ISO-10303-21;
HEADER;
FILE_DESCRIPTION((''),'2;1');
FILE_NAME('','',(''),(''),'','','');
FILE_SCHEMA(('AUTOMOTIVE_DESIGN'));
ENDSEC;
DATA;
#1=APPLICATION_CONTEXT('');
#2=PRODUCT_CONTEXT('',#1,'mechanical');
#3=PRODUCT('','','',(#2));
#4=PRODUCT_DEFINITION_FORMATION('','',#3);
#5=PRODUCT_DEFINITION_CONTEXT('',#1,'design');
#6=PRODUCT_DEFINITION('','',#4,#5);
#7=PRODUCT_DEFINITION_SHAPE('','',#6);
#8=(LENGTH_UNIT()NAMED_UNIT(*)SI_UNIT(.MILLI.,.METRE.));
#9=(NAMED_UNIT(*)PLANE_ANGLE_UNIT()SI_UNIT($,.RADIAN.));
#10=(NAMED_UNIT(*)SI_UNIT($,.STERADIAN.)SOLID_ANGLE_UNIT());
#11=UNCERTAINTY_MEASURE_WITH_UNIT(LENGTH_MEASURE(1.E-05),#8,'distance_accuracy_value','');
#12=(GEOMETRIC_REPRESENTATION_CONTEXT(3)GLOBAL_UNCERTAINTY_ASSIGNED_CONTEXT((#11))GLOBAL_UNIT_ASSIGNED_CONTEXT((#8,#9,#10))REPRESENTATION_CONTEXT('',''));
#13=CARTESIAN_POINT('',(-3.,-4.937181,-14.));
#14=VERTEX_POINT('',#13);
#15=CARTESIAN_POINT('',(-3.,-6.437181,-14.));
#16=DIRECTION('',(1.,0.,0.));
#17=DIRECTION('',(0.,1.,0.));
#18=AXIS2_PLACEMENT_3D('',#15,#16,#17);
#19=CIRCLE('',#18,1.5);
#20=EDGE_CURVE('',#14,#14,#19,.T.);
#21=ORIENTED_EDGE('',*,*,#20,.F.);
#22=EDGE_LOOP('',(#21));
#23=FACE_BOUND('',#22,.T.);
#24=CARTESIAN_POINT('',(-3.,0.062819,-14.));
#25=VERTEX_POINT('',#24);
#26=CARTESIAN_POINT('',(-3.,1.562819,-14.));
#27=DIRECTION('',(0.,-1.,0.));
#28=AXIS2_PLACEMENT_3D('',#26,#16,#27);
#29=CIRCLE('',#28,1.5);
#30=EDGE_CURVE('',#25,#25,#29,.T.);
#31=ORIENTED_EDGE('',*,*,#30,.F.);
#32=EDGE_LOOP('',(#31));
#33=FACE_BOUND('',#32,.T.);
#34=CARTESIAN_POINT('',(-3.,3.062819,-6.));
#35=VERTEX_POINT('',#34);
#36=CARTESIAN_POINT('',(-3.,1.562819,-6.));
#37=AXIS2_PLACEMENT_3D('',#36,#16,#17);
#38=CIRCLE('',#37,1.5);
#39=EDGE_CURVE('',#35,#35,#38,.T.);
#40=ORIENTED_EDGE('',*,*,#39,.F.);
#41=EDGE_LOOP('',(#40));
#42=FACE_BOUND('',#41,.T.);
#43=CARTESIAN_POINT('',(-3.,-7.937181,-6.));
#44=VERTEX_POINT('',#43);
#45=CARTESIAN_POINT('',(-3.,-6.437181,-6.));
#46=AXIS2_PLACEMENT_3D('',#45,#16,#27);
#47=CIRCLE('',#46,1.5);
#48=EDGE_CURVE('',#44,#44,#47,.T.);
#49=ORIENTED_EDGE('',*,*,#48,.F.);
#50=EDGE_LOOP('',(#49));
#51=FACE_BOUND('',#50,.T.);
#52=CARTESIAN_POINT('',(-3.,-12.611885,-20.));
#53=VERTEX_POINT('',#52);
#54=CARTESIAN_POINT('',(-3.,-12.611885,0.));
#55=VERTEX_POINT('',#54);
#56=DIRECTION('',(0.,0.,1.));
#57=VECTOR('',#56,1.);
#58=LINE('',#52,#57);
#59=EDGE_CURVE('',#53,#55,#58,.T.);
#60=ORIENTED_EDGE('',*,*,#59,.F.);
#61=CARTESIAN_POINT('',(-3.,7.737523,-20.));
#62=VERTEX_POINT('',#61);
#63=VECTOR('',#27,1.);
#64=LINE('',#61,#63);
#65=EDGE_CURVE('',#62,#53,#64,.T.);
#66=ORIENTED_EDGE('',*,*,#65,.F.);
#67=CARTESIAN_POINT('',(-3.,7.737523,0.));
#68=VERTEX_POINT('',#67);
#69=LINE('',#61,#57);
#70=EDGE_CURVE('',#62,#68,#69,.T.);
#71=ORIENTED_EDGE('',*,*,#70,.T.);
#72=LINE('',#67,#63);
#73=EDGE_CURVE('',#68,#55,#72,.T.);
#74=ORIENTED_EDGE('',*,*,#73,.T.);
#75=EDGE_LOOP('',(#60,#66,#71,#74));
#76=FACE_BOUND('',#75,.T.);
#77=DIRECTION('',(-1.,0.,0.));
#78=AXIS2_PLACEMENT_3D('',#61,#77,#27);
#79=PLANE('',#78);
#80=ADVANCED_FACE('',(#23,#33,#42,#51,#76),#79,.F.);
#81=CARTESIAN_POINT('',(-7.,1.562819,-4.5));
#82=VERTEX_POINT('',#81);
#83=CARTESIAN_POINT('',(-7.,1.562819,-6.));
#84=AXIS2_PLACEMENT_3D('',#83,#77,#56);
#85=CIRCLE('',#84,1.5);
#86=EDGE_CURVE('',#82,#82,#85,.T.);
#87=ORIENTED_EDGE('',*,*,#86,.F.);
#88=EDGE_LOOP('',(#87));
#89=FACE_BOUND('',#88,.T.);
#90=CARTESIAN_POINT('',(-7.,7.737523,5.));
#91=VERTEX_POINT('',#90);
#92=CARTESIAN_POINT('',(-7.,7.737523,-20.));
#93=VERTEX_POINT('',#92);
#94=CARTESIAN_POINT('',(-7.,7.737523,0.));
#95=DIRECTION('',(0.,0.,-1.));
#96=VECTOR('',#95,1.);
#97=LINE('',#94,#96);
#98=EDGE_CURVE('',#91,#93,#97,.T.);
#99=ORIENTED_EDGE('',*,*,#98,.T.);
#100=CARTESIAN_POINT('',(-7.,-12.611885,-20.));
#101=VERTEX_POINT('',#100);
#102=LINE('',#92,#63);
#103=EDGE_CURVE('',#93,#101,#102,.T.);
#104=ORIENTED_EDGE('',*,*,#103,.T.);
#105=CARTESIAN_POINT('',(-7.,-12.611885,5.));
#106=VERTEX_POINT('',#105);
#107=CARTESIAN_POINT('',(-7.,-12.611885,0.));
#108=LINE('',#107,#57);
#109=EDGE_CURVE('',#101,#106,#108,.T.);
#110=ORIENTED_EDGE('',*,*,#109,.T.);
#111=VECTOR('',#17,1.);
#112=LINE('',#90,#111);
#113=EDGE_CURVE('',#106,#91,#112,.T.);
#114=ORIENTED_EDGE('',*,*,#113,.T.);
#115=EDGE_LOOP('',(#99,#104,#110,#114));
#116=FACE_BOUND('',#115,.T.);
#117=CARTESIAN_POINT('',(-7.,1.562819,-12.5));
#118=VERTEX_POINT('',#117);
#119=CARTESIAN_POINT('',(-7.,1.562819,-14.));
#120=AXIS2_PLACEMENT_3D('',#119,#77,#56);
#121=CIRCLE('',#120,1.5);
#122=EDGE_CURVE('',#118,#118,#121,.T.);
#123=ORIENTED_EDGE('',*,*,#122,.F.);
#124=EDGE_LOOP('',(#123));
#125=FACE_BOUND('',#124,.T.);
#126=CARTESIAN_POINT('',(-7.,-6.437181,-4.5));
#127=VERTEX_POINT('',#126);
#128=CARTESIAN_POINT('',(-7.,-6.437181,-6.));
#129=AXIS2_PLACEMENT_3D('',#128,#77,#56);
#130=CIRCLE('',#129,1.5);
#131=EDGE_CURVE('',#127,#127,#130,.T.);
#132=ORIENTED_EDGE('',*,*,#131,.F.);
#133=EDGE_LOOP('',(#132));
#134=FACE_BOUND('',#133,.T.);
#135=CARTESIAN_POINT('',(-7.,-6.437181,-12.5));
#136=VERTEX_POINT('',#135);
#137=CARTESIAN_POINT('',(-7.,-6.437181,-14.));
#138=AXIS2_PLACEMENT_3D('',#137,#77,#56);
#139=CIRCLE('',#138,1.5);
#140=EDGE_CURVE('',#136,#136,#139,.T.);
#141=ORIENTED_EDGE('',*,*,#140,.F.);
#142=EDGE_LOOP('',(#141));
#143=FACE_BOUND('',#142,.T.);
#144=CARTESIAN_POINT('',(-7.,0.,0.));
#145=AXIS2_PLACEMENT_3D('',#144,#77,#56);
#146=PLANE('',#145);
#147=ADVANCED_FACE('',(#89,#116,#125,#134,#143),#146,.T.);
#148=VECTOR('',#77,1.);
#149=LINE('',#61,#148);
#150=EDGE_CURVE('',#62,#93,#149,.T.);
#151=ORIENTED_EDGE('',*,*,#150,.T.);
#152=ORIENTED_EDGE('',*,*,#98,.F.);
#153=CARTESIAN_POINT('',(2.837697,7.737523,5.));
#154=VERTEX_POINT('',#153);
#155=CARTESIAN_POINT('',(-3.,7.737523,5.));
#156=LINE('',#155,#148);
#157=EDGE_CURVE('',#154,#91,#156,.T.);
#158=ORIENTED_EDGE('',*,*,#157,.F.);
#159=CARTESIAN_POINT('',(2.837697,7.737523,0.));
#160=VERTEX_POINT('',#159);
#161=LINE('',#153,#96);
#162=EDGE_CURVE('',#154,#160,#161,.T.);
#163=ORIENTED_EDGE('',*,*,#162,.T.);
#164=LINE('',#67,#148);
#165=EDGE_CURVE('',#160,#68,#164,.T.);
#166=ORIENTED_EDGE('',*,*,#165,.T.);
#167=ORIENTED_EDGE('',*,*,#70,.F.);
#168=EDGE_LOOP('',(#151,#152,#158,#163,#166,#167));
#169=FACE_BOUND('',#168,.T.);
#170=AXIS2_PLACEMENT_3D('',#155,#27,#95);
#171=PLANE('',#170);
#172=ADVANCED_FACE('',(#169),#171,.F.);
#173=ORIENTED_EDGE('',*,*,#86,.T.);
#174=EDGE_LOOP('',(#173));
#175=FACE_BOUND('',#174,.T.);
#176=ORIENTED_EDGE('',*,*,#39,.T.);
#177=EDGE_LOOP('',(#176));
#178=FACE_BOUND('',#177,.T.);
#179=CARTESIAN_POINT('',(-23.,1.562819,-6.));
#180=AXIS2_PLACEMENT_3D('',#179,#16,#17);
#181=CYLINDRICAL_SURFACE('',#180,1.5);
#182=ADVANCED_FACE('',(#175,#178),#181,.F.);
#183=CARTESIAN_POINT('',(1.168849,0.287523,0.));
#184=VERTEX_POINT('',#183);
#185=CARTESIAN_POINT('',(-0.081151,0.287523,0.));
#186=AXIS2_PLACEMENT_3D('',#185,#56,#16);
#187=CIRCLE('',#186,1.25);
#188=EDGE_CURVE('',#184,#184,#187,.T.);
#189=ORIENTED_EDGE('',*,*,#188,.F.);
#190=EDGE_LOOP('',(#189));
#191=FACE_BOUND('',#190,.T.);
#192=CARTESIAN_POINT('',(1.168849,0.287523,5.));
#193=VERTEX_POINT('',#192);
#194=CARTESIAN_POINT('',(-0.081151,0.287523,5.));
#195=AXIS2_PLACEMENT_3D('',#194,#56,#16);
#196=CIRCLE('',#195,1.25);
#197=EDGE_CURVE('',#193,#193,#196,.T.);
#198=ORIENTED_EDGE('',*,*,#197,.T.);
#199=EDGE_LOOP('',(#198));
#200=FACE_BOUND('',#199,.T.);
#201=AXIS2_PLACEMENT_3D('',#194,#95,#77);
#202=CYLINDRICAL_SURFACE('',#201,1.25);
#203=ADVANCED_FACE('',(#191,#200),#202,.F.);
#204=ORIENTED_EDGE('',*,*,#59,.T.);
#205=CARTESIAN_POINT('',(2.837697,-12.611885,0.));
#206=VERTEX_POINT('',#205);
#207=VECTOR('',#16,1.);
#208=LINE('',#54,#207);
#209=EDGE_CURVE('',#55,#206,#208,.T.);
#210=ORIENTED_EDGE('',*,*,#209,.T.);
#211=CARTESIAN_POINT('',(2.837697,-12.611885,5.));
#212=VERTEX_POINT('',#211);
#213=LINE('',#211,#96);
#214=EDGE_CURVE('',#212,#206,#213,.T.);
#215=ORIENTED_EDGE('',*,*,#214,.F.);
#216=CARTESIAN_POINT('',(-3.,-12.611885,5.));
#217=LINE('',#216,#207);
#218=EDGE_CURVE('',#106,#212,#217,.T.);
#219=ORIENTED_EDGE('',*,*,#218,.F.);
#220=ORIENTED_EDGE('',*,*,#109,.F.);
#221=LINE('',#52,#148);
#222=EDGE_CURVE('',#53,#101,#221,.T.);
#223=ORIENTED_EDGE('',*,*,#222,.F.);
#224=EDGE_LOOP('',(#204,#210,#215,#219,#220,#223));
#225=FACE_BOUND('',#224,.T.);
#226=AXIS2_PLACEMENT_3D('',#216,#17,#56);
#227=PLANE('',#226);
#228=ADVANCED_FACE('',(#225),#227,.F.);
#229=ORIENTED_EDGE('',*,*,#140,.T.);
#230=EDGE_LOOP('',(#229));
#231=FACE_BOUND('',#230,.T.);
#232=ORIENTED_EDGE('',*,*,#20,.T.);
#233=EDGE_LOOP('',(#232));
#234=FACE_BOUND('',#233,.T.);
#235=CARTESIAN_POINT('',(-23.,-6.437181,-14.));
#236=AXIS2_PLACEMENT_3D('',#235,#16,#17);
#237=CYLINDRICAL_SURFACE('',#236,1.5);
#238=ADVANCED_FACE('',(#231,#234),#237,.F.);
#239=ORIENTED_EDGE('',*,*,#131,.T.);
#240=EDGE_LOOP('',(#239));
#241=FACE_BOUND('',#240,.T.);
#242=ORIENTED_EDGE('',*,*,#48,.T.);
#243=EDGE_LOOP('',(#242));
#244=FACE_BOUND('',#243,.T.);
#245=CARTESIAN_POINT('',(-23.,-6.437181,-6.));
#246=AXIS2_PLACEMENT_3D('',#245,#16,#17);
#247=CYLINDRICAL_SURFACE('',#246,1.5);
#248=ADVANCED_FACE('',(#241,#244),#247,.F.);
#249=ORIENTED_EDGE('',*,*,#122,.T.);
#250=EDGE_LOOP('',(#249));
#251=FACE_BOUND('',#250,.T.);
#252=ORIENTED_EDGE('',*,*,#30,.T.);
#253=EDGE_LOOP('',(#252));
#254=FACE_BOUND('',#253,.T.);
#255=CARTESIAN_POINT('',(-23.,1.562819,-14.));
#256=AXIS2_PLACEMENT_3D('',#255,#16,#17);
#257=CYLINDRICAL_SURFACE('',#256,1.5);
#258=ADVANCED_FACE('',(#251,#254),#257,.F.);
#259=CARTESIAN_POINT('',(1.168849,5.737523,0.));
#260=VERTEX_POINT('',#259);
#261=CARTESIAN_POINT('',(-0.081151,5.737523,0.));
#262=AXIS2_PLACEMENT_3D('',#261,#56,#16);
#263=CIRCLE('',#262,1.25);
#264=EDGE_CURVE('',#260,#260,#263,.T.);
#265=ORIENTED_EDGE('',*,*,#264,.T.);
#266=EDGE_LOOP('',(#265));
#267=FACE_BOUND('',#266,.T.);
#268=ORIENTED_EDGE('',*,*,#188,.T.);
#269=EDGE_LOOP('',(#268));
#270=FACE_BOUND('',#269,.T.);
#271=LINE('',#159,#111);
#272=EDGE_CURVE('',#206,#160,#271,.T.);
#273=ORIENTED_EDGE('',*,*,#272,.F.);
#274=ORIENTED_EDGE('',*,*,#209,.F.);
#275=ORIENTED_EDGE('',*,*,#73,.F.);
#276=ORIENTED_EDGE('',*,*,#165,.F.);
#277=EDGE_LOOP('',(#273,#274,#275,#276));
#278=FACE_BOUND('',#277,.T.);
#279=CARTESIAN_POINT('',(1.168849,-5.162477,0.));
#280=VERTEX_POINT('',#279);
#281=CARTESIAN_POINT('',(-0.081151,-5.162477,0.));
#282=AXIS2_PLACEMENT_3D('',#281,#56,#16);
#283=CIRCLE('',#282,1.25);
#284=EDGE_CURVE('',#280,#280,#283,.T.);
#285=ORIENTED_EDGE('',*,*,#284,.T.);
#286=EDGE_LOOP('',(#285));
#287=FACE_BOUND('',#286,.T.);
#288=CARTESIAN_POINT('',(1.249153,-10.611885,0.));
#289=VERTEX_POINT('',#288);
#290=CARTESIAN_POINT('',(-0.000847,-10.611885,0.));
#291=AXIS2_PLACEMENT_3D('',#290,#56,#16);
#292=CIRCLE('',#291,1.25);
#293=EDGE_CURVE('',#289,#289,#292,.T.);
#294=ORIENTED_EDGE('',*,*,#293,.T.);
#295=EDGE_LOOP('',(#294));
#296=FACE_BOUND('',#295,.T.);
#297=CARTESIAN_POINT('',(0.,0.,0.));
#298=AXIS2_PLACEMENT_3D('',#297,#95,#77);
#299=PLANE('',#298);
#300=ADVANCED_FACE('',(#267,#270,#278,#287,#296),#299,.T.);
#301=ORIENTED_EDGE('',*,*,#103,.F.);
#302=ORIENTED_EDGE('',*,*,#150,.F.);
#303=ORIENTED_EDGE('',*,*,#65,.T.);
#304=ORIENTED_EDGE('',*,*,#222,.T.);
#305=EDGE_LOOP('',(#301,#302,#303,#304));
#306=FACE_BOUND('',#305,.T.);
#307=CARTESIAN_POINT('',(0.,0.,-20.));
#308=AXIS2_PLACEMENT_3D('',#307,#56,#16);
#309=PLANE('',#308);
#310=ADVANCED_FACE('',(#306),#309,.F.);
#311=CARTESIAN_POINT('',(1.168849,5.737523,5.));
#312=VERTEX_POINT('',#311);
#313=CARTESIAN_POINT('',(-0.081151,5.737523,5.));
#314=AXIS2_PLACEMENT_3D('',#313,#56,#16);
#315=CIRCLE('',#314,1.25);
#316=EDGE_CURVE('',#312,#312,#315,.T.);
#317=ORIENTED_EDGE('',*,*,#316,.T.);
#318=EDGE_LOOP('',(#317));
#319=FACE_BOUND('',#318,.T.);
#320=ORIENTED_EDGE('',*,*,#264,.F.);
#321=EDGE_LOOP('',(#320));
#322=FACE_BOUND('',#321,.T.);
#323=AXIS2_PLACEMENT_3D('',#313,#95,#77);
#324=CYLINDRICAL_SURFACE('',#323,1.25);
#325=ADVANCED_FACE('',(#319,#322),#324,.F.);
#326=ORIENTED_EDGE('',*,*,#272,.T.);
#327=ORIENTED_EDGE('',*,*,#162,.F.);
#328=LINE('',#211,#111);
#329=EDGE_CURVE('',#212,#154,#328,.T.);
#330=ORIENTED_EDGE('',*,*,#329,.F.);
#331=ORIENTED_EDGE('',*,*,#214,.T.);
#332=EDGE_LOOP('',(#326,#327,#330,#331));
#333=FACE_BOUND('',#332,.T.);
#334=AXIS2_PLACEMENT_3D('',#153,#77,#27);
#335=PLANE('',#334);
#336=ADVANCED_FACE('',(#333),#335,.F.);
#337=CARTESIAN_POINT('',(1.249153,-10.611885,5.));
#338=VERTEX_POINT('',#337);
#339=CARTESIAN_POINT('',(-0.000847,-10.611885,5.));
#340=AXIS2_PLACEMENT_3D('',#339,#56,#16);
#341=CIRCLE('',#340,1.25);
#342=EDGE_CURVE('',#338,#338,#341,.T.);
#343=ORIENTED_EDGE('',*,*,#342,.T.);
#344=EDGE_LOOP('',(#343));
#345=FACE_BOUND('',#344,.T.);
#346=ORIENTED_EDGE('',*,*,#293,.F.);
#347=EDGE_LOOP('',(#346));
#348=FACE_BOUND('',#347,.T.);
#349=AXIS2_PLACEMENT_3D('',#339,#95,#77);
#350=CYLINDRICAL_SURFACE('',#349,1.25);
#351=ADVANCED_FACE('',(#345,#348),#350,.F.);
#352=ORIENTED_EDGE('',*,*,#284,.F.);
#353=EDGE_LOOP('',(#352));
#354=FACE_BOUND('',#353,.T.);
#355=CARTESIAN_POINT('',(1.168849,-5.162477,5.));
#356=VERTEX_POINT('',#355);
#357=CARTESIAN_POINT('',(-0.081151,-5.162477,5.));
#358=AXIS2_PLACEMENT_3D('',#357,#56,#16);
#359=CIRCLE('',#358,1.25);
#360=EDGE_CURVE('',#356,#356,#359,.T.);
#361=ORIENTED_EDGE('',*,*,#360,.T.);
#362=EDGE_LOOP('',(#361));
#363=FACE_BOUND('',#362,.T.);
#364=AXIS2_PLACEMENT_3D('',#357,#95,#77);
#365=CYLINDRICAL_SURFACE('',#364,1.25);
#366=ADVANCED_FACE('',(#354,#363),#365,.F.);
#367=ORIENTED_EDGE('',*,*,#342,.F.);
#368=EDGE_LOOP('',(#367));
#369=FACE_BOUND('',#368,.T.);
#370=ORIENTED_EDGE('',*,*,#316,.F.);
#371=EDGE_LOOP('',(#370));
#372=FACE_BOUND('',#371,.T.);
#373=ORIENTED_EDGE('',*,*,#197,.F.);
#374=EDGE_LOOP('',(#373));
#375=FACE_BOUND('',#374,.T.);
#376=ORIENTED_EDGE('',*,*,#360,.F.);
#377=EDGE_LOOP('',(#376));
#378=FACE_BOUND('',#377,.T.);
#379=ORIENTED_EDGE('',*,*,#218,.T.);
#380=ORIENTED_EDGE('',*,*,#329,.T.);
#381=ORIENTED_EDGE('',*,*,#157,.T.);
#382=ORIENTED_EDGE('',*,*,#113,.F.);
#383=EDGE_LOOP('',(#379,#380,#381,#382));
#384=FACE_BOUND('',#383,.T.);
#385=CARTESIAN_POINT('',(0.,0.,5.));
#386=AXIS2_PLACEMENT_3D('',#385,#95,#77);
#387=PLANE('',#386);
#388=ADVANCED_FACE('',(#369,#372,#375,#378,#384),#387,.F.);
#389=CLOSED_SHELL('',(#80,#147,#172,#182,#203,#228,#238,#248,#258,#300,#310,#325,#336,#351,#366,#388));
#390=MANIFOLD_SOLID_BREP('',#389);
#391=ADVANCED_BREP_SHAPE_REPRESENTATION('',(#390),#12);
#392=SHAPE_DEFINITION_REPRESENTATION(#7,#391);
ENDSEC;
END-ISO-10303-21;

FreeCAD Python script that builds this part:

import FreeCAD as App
import Part
import Sketcher
Q = App.Units.Quantity


def add_polygon(sketch, points):
    """Adds a closed chain of lines whose ends are joined by coincident constraints."""
    first, n = sketch.GeometryCount, len(points)
    for a, b in zip(points, points[1:] + points[:1]):
        sketch.addGeometry(Part.LineSegment(App.Vector(*a, 0), App.Vector(*b, 0)), False)
    for i in range(n):
        sketch.addConstraint(Sketcher.Constraint("Coincident", first + i, 2, first + (i + 1) % n, 1))

doc = App.newDocument("Part")
body = doc.addObject("PartDesign::Body", "Body")

# Sketch on XY plane
sketch1 = body.newObject("Sketcher::SketchObject", "Sketch")
sketch1.AttachmentSupport = (doc.getObject("XY_Plane"), [""])
sketch1.MapMode = "FlatFace"
add_polygon(sketch1, [(-3, -12.6), (2.8, -12.6), (2.8, 7.7), (-3, 7.7)])  # lines 0-3
sketch1.addGeometry(Part.Circle(App.Vector(-0.1, -5.2, 0), App.Vector(0, 0, 1), 1.2), False)  # 4
sketch1.addGeometry(Part.Circle(App.Vector(0, -10.6, 0), App.Vector(0, 0, 1), 1.2), False)  # 5
sketch1.addGeometry(Part.Circle(App.Vector(-0.1, 0.3, 0), App.Vector(0, 0, 1), 1.2), False)  # 6
sketch1.addGeometry(Part.Circle(App.Vector(-0.1, 5.7, 0), App.Vector(0, 0, 1), 1.2), False)  # 7
sketch1.addConstraint([
    Sketcher.Constraint("Horizontal", 0),
    Sketcher.Constraint("Vertical", 1),
    Sketcher.Constraint("Horizontal", 2),
    Sketcher.Constraint("Vertical", 3),
    Sketcher.Constraint("Equal", 4, 5),
    Sketcher.Constraint("Equal", 5, 6),
    Sketcher.Constraint("Equal", 6, 7),
    Sketcher.Constraint("Vertical", 4, 3, 6, 3),
    Sketcher.Constraint("Vertical", 6, 3, 7, 3),
    Sketcher.Constraint("Diameter", 4, Q("2.5 mm")),
    Sketcher.Constraint("DistanceX", 2, 2, -1, 1, Q("3 mm")),
    Sketcher.Constraint("DistanceY", 0, 2, 5, 3, Q("2 mm")),
    Sketcher.Constraint("DistanceY", 7, 3, 1, 2, Q("2 mm")),
    Sketcher.Constraint("DistanceY", 4, 3, 7, 3, Q("10.9 mm")),
    Sketcher.Constraint("DistanceY", 4, 3, 6, 3, Q("5.45 mm")),
    Sketcher.Constraint("DistanceY", 1, 1, 1, 2, Q("20.349408 mm")),
    Sketcher.Constraint("DistanceX", 0, 1, 0, 2, Q("5.837697 mm")),
    Sketcher.Constraint("DistanceX", 4, 3, -1, 1, Q("0.081151 mm")),
    Sketcher.Constraint("DistanceY", 4, 3, -1, 1, Q("5.162477 mm")),
    Sketcher.Constraint("DistanceX", 5, 3, -1, 1, Q("0.000847 mm")),
])
pad1 = body.newObject("PartDesign::Pad", "Pad")
pad1.Profile = sketch1
pad1.Length = 5

# Sketch on YZ plane
sketch2 = body.newObject("Sketcher::SketchObject", "Sketch001")
sketch2.AttachmentSupport = (doc.getObject("YZ_Plane"), [""])
sketch2.MapMode = "FlatFace"
sketch2.AttachmentOffset = App.Placement(App.Vector(0, 0, -3), App.Rotation())
add_polygon(sketch2, [(8, 0), (-13, 0), (-13, 5), (8, 5)])  # lines 0-3
sketch2.addConstraint([
    Sketcher.Constraint("Horizontal", 0),
    Sketcher.Constraint("Vertical", 1),
    Sketcher.Constraint("Horizontal", 2),
    Sketcher.Constraint("Vertical", 3),
    Sketcher.Constraint("PointOnObject", 0, 2, -1),
    Sketcher.Constraint("DistanceY", 1, 1, 1, 2, Q("5 mm")),
    Sketcher.Constraint("DistanceX", 0, 2, 0, 1, Q("20.349408 mm")),
    Sketcher.Constraint("DistanceX", 0, 2, -1, 1, Q("12.611885 mm")),
])
pad2 = body.newObject("PartDesign::Pad", "Pad001")
pad2.Profile = sketch2
pad2.Length = 4
pad2.Reversed = True

# Sketch on XY plane
sketch3 = body.newObject("Sketcher::SketchObject", "Sketch002")
sketch3.AttachmentSupport = (doc.getObject("XY_Plane"), [""])
sketch3.MapMode = "FlatFace"
add_polygon(sketch3, [(-3, 7.7), (-3, -12.6), (-7, -12.6), (-7, 7.7)])  # lines 0-3
sketch3.addConstraint([
    Sketcher.Constraint("Vertical", 0),
    Sketcher.Constraint("Horizontal", 1),
    Sketcher.Constraint("Vertical", 2),
    Sketcher.Constraint("Horizontal", 3),
    Sketcher.Constraint("DistanceX", 1, 2, 1, 1, Q("4 mm")),
    Sketcher.Constraint("DistanceX", 0, 2, -1, 1, Q("3 mm")),
    Sketcher.Constraint("DistanceY", 0, 2, 0, 1, Q("20.349408 mm")),
    Sketcher.Constraint("DistanceY", 0, 2, -1, 1, Q("12.611885 mm")),
])
pad3 = body.newObject("PartDesign::Pad", "Pad002")
pad3.Profile = sketch3
pad3.Length = 20
pad3.Reversed = True

# Sketch on YZ plane
sketch4 = body.newObject("Sketcher::SketchObject", "Sketch003")
sketch4.AttachmentSupport = (doc.getObject("YZ_Plane"), [""])
sketch4.MapMode = "FlatFace"
sketch4.AttachmentOffset = App.Placement(App.Vector(0, 0, -3), App.Rotation())
sketch4.addGeometry([
    Part.Circle(App.Vector(1.6, -6, 0), App.Vector(0, 0, 1), 1.5),
    Part.Circle(App.Vector(1.6, -14, 0), App.Vector(0, 0, 1), 1.5),
    Part.Circle(App.Vector(-6.4, -14, 0), App.Vector(0, 0, 1), 1.5),
    Part.Circle(App.Vector(-6.4, -6, 0), App.Vector(0, 0, 1), 1.5),
], False)
sketch4.addConstraint([
    Sketcher.Constraint("Equal", 0, 1),
    Sketcher.Constraint("Equal", 1, 2),
    Sketcher.Constraint("Equal", 2, 3),
    Sketcher.Constraint("Horizontal", 1, 3, 2, 3),
    Sketcher.Constraint("Horizontal", 0, 3, 3, 3),
    Sketcher.Constraint("Vertical", 0, 3, 1, 3),
    Sketcher.Constraint("Vertical", 2, 3, 3, 3),
    Sketcher.Constraint("Diameter", 0, Q("3 mm")),
    Sketcher.Constraint("DistanceY", 0, 3, -1, 1, Q("6 mm")),
    Sketcher.Constraint("DistanceY", 1, 3, -1, 1, Q("14 mm")),
    Sketcher.Constraint("DistanceX", 2, 3, 1, 3, Q("8 mm")),
    Sketcher.Constraint("DistanceX", -1, 1, 0, 3, Q("1.562819 mm")),
])
pocket1 = body.newObject("PartDesign::Pocket", "Pocket")
pocket1.Profile = sketch4
pocket1.Length = 20

doc.recompute()
